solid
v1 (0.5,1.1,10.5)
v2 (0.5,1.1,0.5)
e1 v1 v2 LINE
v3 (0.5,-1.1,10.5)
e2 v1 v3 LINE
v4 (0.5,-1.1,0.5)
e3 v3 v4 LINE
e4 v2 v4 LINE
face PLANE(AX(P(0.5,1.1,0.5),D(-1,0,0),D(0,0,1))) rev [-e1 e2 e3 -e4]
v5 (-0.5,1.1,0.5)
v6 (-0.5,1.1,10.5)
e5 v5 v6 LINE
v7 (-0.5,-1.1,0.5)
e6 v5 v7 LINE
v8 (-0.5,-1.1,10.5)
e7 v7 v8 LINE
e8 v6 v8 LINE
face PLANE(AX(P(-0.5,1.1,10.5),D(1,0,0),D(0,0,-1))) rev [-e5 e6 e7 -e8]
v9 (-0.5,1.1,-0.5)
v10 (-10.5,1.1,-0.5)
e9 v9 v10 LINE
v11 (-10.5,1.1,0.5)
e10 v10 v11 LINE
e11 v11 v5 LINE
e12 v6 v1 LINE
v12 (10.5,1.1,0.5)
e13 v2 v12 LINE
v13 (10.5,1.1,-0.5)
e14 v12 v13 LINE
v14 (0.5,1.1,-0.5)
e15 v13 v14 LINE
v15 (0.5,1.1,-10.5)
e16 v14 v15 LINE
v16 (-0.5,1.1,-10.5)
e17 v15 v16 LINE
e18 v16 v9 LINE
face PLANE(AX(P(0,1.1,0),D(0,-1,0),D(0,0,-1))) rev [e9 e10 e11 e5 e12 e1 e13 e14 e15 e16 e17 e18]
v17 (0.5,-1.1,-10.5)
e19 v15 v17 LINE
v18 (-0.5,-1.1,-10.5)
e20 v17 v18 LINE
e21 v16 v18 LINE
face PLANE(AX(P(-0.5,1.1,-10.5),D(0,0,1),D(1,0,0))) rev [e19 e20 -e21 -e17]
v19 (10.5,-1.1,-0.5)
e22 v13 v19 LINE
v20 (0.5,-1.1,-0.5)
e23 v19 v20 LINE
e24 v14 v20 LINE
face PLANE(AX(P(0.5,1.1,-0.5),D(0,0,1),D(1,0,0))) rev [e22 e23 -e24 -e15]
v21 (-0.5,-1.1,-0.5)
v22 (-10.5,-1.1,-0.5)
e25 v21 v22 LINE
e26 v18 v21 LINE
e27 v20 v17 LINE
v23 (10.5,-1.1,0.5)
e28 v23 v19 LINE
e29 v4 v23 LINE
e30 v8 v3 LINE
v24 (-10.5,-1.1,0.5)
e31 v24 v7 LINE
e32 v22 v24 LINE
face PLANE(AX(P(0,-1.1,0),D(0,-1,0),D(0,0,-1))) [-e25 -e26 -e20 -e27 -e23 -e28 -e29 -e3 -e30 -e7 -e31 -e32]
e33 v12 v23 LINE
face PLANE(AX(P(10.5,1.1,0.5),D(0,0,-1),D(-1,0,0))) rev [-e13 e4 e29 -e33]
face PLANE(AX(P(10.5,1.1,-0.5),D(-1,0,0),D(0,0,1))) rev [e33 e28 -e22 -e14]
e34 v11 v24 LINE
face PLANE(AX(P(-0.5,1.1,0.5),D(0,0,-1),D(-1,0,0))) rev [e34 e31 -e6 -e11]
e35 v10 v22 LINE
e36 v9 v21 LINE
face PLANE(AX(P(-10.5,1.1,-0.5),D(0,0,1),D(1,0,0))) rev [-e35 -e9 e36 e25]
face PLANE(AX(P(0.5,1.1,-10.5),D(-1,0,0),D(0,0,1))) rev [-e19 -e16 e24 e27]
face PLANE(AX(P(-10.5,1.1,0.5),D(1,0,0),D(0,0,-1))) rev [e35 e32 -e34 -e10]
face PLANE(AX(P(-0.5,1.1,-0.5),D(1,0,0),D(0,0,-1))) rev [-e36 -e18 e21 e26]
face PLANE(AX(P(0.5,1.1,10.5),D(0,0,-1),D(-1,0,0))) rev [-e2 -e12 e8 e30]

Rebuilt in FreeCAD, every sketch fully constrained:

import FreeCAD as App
import Part
import Sketcher
Q = App.Units.Quantity

doc = App.newDocument("Part")
body = doc.addObject("PartDesign::Body", "Body")

# Sketch on XZ plane
sketch1 = doc.addObject("Sketcher::SketchObject", "Sketch")
body.addObject(sketch1)
sketch1.AttachmentSupport = (doc.XZ_Plane, [""])
sketch1.MapMode = "FlatFace"
sketch1.addGeometry([
    Part.LineSegment(App.Vector(-0.5, -0.5, 0), App.Vector(-10.5, -0.5, 0)),  # 0
    Part.LineSegment(App.Vector(-10.5, -0.5, 0), App.Vector(-10.5, 0.5, 0)),  # 1
    Part.LineSegment(App.Vector(-10.5, 0.5, 0), App.Vector(-0.5, 0.5, 0)),  # 2
    Part.LineSegment(App.Vector(-0.5, 0.5, 0), App.Vector(-0.5, 10.5, 0)),  # 3
    Part.LineSegment(App.Vector(-0.5, 10.5, 0), App.Vector(0.5, 10.5, 0)),  # 4
    Part.LineSegment(App.Vector(0.5, 10.5, 0), App.Vector(0.5, 0.5, 0)),  # 5
    Part.LineSegment(App.Vector(0.5, 0.5, 0), App.Vector(10.5, 0.5, 0)),  # 6
    Part.LineSegment(App.Vector(10.5, 0.5, 0), App.Vector(10.5, -0.5, 0)),  # 7
    Part.LineSegment(App.Vector(10.5, -0.5, 0), App.Vector(0.5, -0.5, 0)),  # 8
    Part.LineSegment(App.Vector(0.5, -0.5, 0), App.Vector(0.5, -10.5, 0)),  # 9
    Part.LineSegment(App.Vector(0.5, -10.5, 0), App.Vector(-0.5, -10.5, 0)),  # 10
    Part.LineSegment(App.Vector(-0.5, -10.5, 0), App.Vector(-0.5, -0.5, 0)),  # 11
], False)
sketch1.addConstraint([
    Sketcher.Constraint("Coincident", 0, 2, 1, 1),
    Sketcher.Constraint("Coincident", 1, 2, 2, 1),
    Sketcher.Constraint("Coincident", 2, 2, 3, 1),
    Sketcher.Constraint("Coincident", 3, 2, 4, 1),
    Sketcher.Constraint("Coincident", 4, 2, 5, 1),
    Sketcher.Constraint("Coincident", 5, 2, 6, 1),
    Sketcher.Constraint("Coincident", 6, 2, 7, 1),
    Sketcher.Constraint("Coincident", 7, 2, 8, 1),
    Sketcher.Constraint("Coincident", 8, 2, 9, 1),
    Sketcher.Constraint("Coincident", 9, 2, 10, 1),
    Sketcher.Constraint("Coincident", 10, 2, 11, 1),
    Sketcher.Constraint("Coincident", 11, 2, 0, 1),
    Sketcher.Constraint("Horizontal", 0),
    Sketcher.Constraint("Vertical", 1),
    Sketcher.Constraint("Horizontal", 2),
    Sketcher.Constraint("Vertical", 3),
    Sketcher.Constraint("Horizontal", 4),
    Sketcher.Constraint("Vertical", 5),
    Sketcher.Constraint("Horizontal", 6),
    Sketcher.Constraint("Vertical", 7),
    Sketcher.Constraint("Horizontal", 8),
    Sketcher.Constraint("Vertical", 9),
    Sketcher.Constraint("Horizontal", 10),
    Sketcher.Constraint("Vertical", 11),
    Sketcher.Constraint("Symmetric", 0, 2, 6, 2, -1, 1),
    Sketcher.Constraint("Symmetric", 2, 2, 8, 2, -1, 1),
    Sketcher.Constraint("Symmetric", 4, 2, 10, 2, -1, 1),
    Sketcher.Constraint("Symmetric", 2, 2, 5, 2, -2),
    Sketcher.Constraint("Equal", 10, 1),
    Sketcher.Constraint("Equal", 8, 3),
    Sketcher.Constraint("DistanceX", 0, 2, 0, 1, Q("10 mm")),
    Sketcher.Constraint("DistanceX", 4, 1, 4, 2, Q("1 mm")),
])
pad1 = doc.addObject("PartDesign::Pad", "Pad")
body.addObject(pad1)
pad1.Profile = sketch1
pad1.Length = 2.2
pad1.Midplane = True

doc.recompute()
